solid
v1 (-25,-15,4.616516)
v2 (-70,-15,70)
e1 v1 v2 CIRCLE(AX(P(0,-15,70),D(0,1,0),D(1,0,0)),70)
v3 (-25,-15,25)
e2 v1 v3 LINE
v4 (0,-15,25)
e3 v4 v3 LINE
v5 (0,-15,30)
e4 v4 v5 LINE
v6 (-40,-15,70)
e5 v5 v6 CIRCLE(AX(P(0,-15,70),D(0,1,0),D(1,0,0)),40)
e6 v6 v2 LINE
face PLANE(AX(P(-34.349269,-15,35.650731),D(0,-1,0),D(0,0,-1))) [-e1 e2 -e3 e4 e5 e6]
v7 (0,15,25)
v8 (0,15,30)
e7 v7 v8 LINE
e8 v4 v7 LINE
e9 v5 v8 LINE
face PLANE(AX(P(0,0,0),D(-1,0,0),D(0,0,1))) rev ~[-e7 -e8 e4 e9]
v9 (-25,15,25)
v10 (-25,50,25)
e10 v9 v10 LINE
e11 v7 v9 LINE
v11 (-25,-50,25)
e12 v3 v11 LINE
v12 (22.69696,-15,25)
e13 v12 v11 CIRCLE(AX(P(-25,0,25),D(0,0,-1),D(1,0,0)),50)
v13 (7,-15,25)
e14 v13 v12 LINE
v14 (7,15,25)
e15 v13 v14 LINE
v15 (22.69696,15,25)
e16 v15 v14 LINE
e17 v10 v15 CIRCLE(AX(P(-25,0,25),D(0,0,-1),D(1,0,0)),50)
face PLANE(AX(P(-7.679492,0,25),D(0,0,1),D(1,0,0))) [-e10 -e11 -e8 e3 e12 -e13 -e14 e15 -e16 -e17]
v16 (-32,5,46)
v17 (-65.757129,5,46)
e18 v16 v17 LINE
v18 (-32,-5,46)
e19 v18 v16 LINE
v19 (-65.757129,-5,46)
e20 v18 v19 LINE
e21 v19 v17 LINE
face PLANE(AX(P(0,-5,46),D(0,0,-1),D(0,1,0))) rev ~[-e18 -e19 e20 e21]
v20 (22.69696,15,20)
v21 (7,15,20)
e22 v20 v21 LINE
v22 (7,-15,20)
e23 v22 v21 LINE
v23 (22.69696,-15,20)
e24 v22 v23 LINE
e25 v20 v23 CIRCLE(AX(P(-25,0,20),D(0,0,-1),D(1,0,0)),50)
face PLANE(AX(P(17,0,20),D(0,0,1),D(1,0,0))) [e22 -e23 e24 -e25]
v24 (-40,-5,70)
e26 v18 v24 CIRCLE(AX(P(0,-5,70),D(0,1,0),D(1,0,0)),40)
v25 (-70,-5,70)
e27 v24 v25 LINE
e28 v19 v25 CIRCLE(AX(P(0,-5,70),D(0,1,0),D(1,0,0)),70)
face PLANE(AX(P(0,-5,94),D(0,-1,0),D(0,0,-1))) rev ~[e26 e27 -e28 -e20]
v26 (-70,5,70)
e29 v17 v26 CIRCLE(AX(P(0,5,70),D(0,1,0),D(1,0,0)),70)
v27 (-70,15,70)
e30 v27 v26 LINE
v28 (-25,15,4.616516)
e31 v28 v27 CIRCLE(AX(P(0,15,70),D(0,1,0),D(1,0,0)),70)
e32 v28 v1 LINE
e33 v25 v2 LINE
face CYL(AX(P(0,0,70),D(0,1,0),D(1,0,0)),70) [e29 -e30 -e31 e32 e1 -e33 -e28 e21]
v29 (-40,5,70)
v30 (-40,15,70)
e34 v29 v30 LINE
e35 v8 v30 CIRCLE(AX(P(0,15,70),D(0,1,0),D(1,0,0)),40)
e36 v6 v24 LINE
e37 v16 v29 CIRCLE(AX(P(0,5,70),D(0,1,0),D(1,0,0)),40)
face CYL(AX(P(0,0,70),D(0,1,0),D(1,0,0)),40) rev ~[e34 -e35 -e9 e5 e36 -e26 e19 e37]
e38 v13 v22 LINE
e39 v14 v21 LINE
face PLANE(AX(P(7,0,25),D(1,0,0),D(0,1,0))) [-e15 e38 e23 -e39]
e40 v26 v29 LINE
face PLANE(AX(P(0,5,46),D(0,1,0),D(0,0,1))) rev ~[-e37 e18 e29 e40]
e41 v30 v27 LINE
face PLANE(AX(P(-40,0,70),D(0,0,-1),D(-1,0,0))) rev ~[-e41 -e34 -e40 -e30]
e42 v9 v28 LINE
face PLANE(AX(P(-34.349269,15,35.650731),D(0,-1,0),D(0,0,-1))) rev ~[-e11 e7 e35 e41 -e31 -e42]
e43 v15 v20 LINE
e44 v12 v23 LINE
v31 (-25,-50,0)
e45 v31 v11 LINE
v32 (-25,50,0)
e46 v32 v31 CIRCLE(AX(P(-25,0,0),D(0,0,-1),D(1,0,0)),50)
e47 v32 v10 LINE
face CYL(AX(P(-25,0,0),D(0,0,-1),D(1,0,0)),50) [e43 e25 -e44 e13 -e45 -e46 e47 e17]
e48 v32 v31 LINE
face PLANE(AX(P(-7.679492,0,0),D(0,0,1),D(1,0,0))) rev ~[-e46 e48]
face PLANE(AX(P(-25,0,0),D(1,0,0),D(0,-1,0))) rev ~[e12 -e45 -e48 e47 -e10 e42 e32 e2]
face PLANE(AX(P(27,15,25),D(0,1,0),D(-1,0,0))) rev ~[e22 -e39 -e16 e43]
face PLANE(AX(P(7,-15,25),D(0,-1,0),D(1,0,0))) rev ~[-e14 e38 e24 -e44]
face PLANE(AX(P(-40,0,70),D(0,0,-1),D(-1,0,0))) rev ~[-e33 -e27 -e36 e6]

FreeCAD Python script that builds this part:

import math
import FreeCAD as App
import Part
import Sketcher

V = App.Vector


def add_polygon(sketch, points):
    """Adds a closed chain of lines whose ends are joined by coincident constraints."""
    first, n = sketch.GeometryCount, len(points)
    for a, b in zip(points, points[1:] + points[:1]):
        sketch.addGeometry(Part.LineSegment(App.Vector(*a, 0), App.Vector(*b, 0)), False)
    for i in range(n):
        sketch.addConstraint(Sketcher.Constraint("Coincident", first + i, 2, first + (i + 1) % n, 1))

doc = App.newDocument("Part")
params = doc.addObject("Spreadsheet::Sheet", "Params")
for row, (alias, value) in enumerate([
    ("sketch1_radius", "40 mm"),
    ("sketch1_radius2", "70 mm"),
    ("pad1_length", "30 mm"),
    ("sketch2_width", "10 mm"),
    ("sketch2_height", "48 mm"),
    ("pocket1_length", "70 mm"),
    ("sketch3_radius", "50 mm"),
    ("pad2_length", "25 mm"),
    ("sketch4_width", "20 mm"),
    ("sketch4_height", "30 mm"),
    ("pocket2_length", "5 mm"),
], start=1):
    params.set(f"A{row}", alias)
    params.set(f"B{row}", "=" + value)
    params.setAlias(f"B{row}", alias)

body = doc.addObject("PartDesign::Body", "Body")

# Sketch on XZ plane
sketch1 = doc.addObject("Sketcher::SketchObject", "Sketch")
body.addObject(sketch1)
sketch1.AttachmentSupport = (doc.XZ_Plane, [""])
sketch1.MapMode = "FlatFace"
sketch1.addGeometry(Part.ArcOfCircle(Part.Circle(V(0, 70, 0), V(0, 0, 1), 40), math.radians(180), math.radians(270)), False)
sketch1.addGeometry(Part.LineSegment(V(-40, 70, 0), V(-70, 70, 0)), False)
sketch1.addGeometry(Part.ArcOfCircle(Part.Circle(V(0, 70, 0), V(0, 0, 1), 70), math.radians(180), math.radians(270)), False)
sketch1.addGeometry(Part.LineSegment(V(0, 0, 0), V(0, 30, 0)), False)
sketch1.addConstraint(Sketcher.Constraint("Coincident", 0, 1, 1, 1))
sketch1.addConstraint(Sketcher.Constraint("Coincident", 1, 2, 2, 1))
sketch1.addConstraint(Sketcher.Constraint("Coincident", 2, 2, 3, 1))
sketch1.addConstraint(Sketcher.Constraint("Coincident", 3, 2, 0, 2))
sketch1.addConstraint(Sketcher.Constraint("Horizontal", 1))
sketch1.addConstraint(Sketcher.Constraint("Vertical", 3))
sketch1.addConstraint(Sketcher.Constraint("Coincident", 2, 2, -1, 1))
sketch1.addConstraint(Sketcher.Constraint("Coincident", 2, 3, 0, 3))
sketch1.addConstraint(Sketcher.Constraint("PointOnObject", 0, 3, -2))
sketch1.addConstraint(Sketcher.Constraint("Horizontal", 2, 3, 0, 1))
sketch1.addConstraint(Sketcher.Constraint("Radius", 0, 40.0))
sketch1.addConstraint(Sketcher.Constraint("Radius", 2, 70.0))
sketch1.setExpression("Constraints[10]", "Params.sketch1_radius")
sketch1.setExpression("Constraints[11]", "Params.sketch1_radius2")
pad1 = doc.addObject("PartDesign::Pad", "Pad")
body.addObject(pad1)
pad1.Profile = sketch1
pad1.setExpression("Length", "Params.pad1_length")
pad1.Midplane = True

# Sketch on YZ plane
sketch2 = doc.addObject("Sketcher::SketchObject", "Sketch001")
body.addObject(sketch2)
sketch2.AttachmentSupport = (doc.YZ_Plane, [""])
sketch2.MapMode = "FlatFace"
add_polygon(sketch2, [(5, 46), (5, 94), (-5, 94), (-5, 46)])  # lines 0-3
sketch2.addConstraint(Sketcher.Constraint("Vertical", 0))
sketch2.addConstraint(Sketcher.Constraint("Horizontal", 1))
sketch2.addConstraint(Sketcher.Constraint("Vertical", 2))
sketch2.addConstraint(Sketcher.Constraint("Horizontal", 3))
sketch2.addConstraint(Sketcher.Constraint("DistanceX", 1, 2, 1, 1, 10.0))
sketch2.addConstraint(Sketcher.Constraint("DistanceY", 0, 1, 0, 2, 48.0))
sketch2.addConstraint(Sketcher.Constraint("DistanceX", -1, 1, 0, 2, 5.0))
sketch2.addConstraint(Sketcher.Constraint("DistanceY", -1, 1, 0, 2, 94.0))
sketch2.setExpression("Constraints[8]", "Params.sketch2_width")
sketch2.setExpression("Constraints[9]", "Params.sketch2_height")
pocket1 = doc.addObject("PartDesign::Pocket", "Pocket")
body.addObject(pocket1)
pocket1.Profile = sketch2
pocket1.setExpression("Length", "Params.pocket1_length")

# Sketch on XY plane
sketch3 = doc.addObject("Sketcher::SketchObject", "Sketch002")
body.addObject(sketch3)
sketch3.AttachmentSupport = (doc.XY_Plane, [""])
sketch3.MapMode = "FlatFace"
sketch3.addGeometry(Part.LineSegment(V(-25, 50, 0), V(-25, -50, 0)), False)
sketch3.addGeometry(Part.ArcOfCircle(Part.Circle(V(-25, 0, 0), V(0, 0, 1), 50), math.radians(-90), math.radians(90)), False)
sketch3.addConstraint(Sketcher.Constraint("Coincident", 0, 1, 1, 2))
sketch3.addConstraint(Sketcher.Constraint("Coincident", 1, 1, 0, 2))
sketch3.addConstraint(Sketcher.Constraint("Vertical", 0))
sketch3.addConstraint(Sketcher.Constraint("PointOnObject", 1, 3, -1))
sketch3.addConstraint(Sketcher.Constraint("Vertical", 1, 3, 0, 1))
sketch3.addConstraint(Sketcher.Constraint("Radius", 1, 50.0))
sketch3.addConstraint(Sketcher.Constraint("DistanceX", 1, 3, -1, 1, 25.0))
sketch3.setExpression("Constraints[5]", "Params.sketch3_radius")
pad2 = doc.addObject("PartDesign::Pad", "Pad001")
body.addObject(pad2)
pad2.Profile = sketch3
pad2.setExpression("Length", "Params.pad2_length")

# Sketch on XY plane
sketch4 = doc.addObject("Sketcher::SketchObject", "Sketch003")
body.addObject(sketch4)
sketch4.AttachmentSupport = (doc.XY_Plane, [""])
sketch4.MapMode = "FlatFace"
sketch4.AttachmentOffset = App.Placement(V(0, 0, 25), App.Rotation())
add_polygon(sketch4, [(7, -15), (27, -15), (27, 15), (7, 15)])  # lines 0-3
sketch4.addConstraint(Sketcher.Constraint("Horizontal", 0))
sketch4.addConstraint(Sketcher.Constraint("Vertical", 1))
sketch4.addConstraint(Sketcher.Constraint("Horizontal", 2))
sketch4.addConstraint(Sketcher.Constraint("Vertical", 3))
sketch4.addConstraint(Sketcher.Constraint("DistanceX", 0, 1, 0, 2, 20.0))
sketch4.addConstraint(Sketcher.Constraint("DistanceY", 1, 1, 1, 2, 30.0))
sketch4.addConstraint(Sketcher.Constraint("DistanceX", -1, 1, 0, 2, 27.0))
sketch4.addConstraint(Sketcher.Constraint("DistanceY", 0, 2, -1, 1, 15.0))
sketch4.setExpression("Constraints[8]", "Params.sketch4_width")
sketch4.setExpression("Constraints[9]", "Params.sketch4_height")
pocket2 = doc.addObject("PartDesign::Pocket", "Pocket001")
body.addObject(pocket2)
pocket2.Profile = sketch4
pocket2.setExpression("Length", "Params.pocket2_length")

doc.recompute()
